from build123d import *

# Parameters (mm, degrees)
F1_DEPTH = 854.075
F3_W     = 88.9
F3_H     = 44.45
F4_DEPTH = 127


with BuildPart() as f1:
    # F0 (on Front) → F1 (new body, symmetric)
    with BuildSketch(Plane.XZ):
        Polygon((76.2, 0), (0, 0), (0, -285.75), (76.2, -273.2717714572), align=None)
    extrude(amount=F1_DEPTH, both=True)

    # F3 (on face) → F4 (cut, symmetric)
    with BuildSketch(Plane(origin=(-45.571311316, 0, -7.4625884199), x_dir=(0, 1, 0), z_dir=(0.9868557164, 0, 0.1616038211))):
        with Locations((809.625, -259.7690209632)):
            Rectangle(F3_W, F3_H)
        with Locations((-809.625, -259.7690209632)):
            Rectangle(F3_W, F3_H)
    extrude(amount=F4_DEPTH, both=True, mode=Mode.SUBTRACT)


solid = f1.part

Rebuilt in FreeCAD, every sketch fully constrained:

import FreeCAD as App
import Part
import Sketcher
from FreeCAD import Vector
Q = App.Units.Quantity

doc = App.newDocument("Part")
params = doc.addObject("Spreadsheet::Sheet", "Params")
for row, (alias, value) in enumerate([
    ("sketch1_width", "3 in"),
    ("sketch1_height", "11.25 in"),
    ("pad1_length", "67.25 in"),
    ("sketch2_width", "3.5 in"),
    ("sketch2_height", "1.75 in"),
    ("pocket1_length", "10 in"),
], start=1):
    params.set(f"A{row}", alias)
    params.set(f"B{row}", "=" + value)
    params.setAlias(f"B{row}", alias)

body = doc.addObject("PartDesign::Body", "Body")

# Sketch on XZ plane
sketch1 = body.newObject("Sketcher::SketchObject", "Sketch")
sketch1.AttachmentSupport = (doc.getObject("XZ_Plane"), [""])
sketch1.MapMode = "FlatFace"
sketch1.addGeometry(Part.LineSegment(Vector(76.2, 0, 0), Vector(0, 0, 0)), False)
sketch1.addGeometry(Part.LineSegment(Vector(0, 0, 0), Vector(0, -285.75, 0)), False)
sketch1.addGeometry(Part.LineSegment(Vector(0, -285.75, 0), Vector(76.2, -273.271771, 0)), False)
sketch1.addGeometry(Part.LineSegment(Vector(76.2, -273.271771, 0), Vector(76.2, 0, 0)), False)
sketch1.addConstraint(Sketcher.Constraint("Coincident", 0, 2, 1, 1))
sketch1.addConstraint(Sketcher.Constraint("Coincident", 1, 2, 2, 1))
sketch1.addConstraint(Sketcher.Constraint("Coincident", 2, 2, 3, 1))
sketch1.addConstraint(Sketcher.Constraint("Coincident", 3, 2, 0, 1))
sketch1.addConstraint(Sketcher.Constraint("Horizontal", 0))
sketch1.addConstraint(Sketcher.Constraint("Vertical", 1))
sketch1.addConstraint(Sketcher.Constraint("Vertical", 3))
sketch1.addConstraint(Sketcher.Constraint("Coincident", 0, 2, -1, 1))
sketch1.addConstraint(Sketcher.Constraint("DistanceX", 0, 2, 0, 1, Q("3 in")))
sketch1.addConstraint(Sketcher.Constraint("DistanceY", 1, 2, 1, 1, Q("11.25 in")))
sketch1.addConstraint(Sketcher.Constraint("Angle", 2, Q("9.3 deg")))
sketch1.setExpression("Constraints[8]", "Params.sketch1_width")
sketch1.setExpression("Constraints[9]", "Params.sketch1_height")
pad1 = body.newObject("PartDesign::Pad", "Pad")
pad1.Profile = sketch1
pad1.setExpression("Length", "Params.pad1_length")
pad1.Midplane = True

# Sketch on an angled plane
sketch2 = body.newObject("Sketcher::SketchObject", "Sketch001")
sketch2.Placement = App.Placement(Vector(-45.571311, 0, -7.462588), App.Rotation(Vector(0, 1, 0), Vector(-0.161603821, 0, 0.986855716), Vector(0.986855716, 0, 0.161603821), "ZXY"))
sketch2.addGeometry(Part.LineSegment(Vector(765.175, -237.544021, 0), Vector(765.175, -281.994021, 0)), False)
sketch2.addGeometry(Part.LineSegment(Vector(765.175, -281.994021, 0), Vector(854.075, -281.994021, 0)), False)
sketch2.addGeometry(Part.LineSegment(Vector(854.075, -281.994021, 0), Vector(854.075, -237.544021, 0)), False)
sketch2.addGeometry(Part.LineSegment(Vector(854.075, -237.544021, 0), Vector(765.175, -237.544021, 0)), False)
sketch2.addGeometry(Part.LineSegment(Vector(-854.075, -237.544021, 0), Vector(-854.075, -281.994021, 0)), False)
sketch2.addGeometry(Part.LineSegment(Vector(-854.075, -281.994021, 0), Vector(-765.175, -281.994021, 0)), False)
sketch2.addGeometry(Part.LineSegment(Vector(-765.175, -281.994021, 0), Vector(-765.175, -237.544021, 0)), False)
sketch2.addGeometry(Part.LineSegment(Vector(-765.175, -237.544021, 0), Vector(-854.075, -237.544021, 0)), False)
sketch2.addConstraint(Sketcher.Constraint("Coincident", 0, 2, 1, 1))
sketch2.addConstraint(Sketcher.Constraint("Coincident", 1, 2, 2, 1))
sketch2.addConstraint(Sketcher.Constraint("Coincident", 2, 2, 3, 1))
sketch2.addConstraint(Sketcher.Constraint("Coincident", 3, 2, 0, 1))
sketch2.addConstraint(Sketcher.Constraint("Coincident", 4, 2, 5, 1))
sketch2.addConstraint(Sketcher.Constraint("Coincident", 5, 2, 6, 1))
sketch2.addConstraint(Sketcher.Constraint("Coincident", 6, 2, 7, 1))
sketch2.addConstraint(Sketcher.Constraint("Coincident", 7, 2, 4, 1))
sketch2.addConstraint(Sketcher.Constraint("Vertical", 0))
sketch2.addConstraint(Sketcher.Constraint("Horizontal", 1))
sketch2.addConstraint(Sketcher.Constraint("Vertical", 2))
sketch2.addConstraint(Sketcher.Constraint("Horizontal", 3))
sketch2.addConstraint(Sketcher.Constraint("Vertical", 4))
sketch2.addConstraint(Sketcher.Constraint("Horizontal", 5))
sketch2.addConstraint(Sketcher.Constraint("Vertical", 6))
sketch2.addConstraint(Sketcher.Constraint("Horizontal", 7))
sketch2.addConstraint(Sketcher.Constraint("Symmetric", 1, 2, 4, 2, -2))
sketch2.addConstraint(Sketcher.Constraint("Symmetric", 3, 2, 6, 2, -2))
sketch2.addConstraint(Sketcher.Constraint("DistanceX", 1, 1, 1, 2, Q("3.5 in")))
sketch2.addConstraint(Sketcher.Constraint("DistanceY", 0, 2, 0, 1, Q("1.75 in")))
sketch2.addConstraint(Sketcher.Constraint("DistanceX", 4, 2, 0, 2, Q("63.75 in")))
sketch2.addConstraint(Sketcher.Constraint("DistanceY", 0, 2, -1, 1, 281.994021))
sketch2.setExpression("Constraints[18]", "Params.sketch2_width")
sketch2.setExpression("Constraints[19]", "Params.sketch2_height")
pocket1 = body.newObject("PartDesign::Pocket", "Pocket")
pocket1.Profile = sketch2
pocket1.setExpression("Length", "Params.pocket1_length")
pocket1.Midplane = True

doc.recompute()
